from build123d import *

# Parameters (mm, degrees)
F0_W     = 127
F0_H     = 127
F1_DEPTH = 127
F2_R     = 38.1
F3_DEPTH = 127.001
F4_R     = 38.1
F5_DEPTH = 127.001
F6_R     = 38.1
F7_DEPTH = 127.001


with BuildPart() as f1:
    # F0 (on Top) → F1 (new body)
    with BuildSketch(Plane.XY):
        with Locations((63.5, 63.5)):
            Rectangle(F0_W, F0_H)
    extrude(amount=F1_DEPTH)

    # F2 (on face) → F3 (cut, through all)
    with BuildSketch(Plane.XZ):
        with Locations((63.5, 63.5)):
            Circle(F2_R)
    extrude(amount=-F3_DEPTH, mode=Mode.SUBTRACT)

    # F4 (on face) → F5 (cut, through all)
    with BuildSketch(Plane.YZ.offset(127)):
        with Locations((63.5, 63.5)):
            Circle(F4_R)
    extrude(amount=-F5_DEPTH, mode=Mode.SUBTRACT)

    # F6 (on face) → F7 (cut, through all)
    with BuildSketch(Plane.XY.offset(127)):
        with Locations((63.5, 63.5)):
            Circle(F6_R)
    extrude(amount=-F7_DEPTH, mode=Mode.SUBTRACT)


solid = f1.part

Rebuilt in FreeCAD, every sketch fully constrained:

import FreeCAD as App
import Part
import Sketcher
Q = App.Units.Quantity


def add_polygon(sketch, points):
    """Adds a closed chain of lines whose ends are joined by coincident constraints."""
    first, n = sketch.GeometryCount, len(points)
    for a, b in zip(points, points[1:] + points[:1]):
        sketch.addGeometry(Part.LineSegment(App.Vector(*a, 0), App.Vector(*b, 0)), False)
    for i in range(n):
        sketch.addConstraint(Sketcher.Constraint("Coincident", first + i, 2, first + (i + 1) % n, 1))

doc = App.newDocument("Part")
body = doc.addObject("PartDesign::Body", "Body")

# Sketch on XY plane
sketch1 = body.newObject("Sketcher::SketchObject", "Sketch")
sketch1.AttachmentSupport = (doc.getObject("XY_Plane"), [""])
sketch1.MapMode = "FlatFace"
add_polygon(sketch1, [(0, 127), (0, 0), (127, 0), (127, 127)])  # lines 0-3
sketch1.addConstraint(Sketcher.Constraint("Vertical", 0))
sketch1.addConstraint(Sketcher.Constraint("Horizontal", 1))
sketch1.addConstraint(Sketcher.Constraint("Vertical", 2))
sketch1.addConstraint(Sketcher.Constraint("Horizontal", 3))
sketch1.addConstraint(Sketcher.Constraint("Coincident", 0, 2, -1, 1))
sketch1.addConstraint(Sketcher.Constraint("Equal", 3, 0))
sketch1.addConstraint(Sketcher.Constraint("DistanceX", 1, 1, 1, 2, Q("5 in")))
pad1 = body.newObject("PartDesign::Pad", "Pad")
pad1.Profile = sketch1
pad1.Length = Q("5 in")

# Sketch on XZ plane
sketch2 = body.newObject("Sketcher::SketchObject", "Sketch001")
sketch2.AttachmentSupport = (doc.getObject("XZ_Plane"), [""])
sketch2.MapMode = "FlatFace"
sketch2.addGeometry(Part.Circle(App.Vector(64, 64, 0), App.Vector(0, 0, 1), 38), False)
sketch2.addConstraint(Sketcher.Constraint("Diameter", 0, Q("3 in")))
sketch2.addConstraint(Sketcher.Constraint("DistanceX", -1, 1, 0, 3, Q("2.5 in")))
sketch2.addConstraint(Sketcher.Constraint("DistanceY", -1, 1, 0, 3, Q("2.5 in")))
pocket1 = body.newObject("PartDesign::Pocket", "Pocket")
pocket1.Profile = sketch2
pocket1.Type = "ThroughAll"

# Sketch on YZ plane
sketch3 = body.newObject("Sketcher::SketchObject", "Sketch002")
sketch3.AttachmentSupport = (doc.getObject("YZ_Plane"), [""])
sketch3.MapMode = "FlatFace"
sketch3.AttachmentOffset = App.Placement(App.Vector(0, 0, 5 * 25.4), App.Rotation())
sketch3.addGeometry(Part.Circle(App.Vector(64, 64, 0), App.Vector(0, 0, 1), 38), False)
sketch3.addConstraint(Sketcher.Constraint("Diameter", 0, Q("3 in")))
sketch3.addConstraint(Sketcher.Constraint("DistanceX", -1, 1, 0, 3, Q("2.5 in")))
sketch3.addConstraint(Sketcher.Constraint("DistanceY", -1, 1, 0, 3, Q("2.5 in")))
pocket2 = body.newObject("PartDesign::Pocket", "Pocket001")
pocket2.Profile = sketch3
pocket2.Type = "ThroughAll"

# Sketch on XY plane
sketch4 = body.newObject("Sketcher::SketchObject", "Sketch003")
sketch4.AttachmentSupport = (doc.getObject("XY_Plane"), [""])
sketch4.MapMode = "FlatFace"
sketch4.AttachmentOffset = App.Placement(App.Vector(0, 0, 5 * 25.4), App.Rotation())
sketch4.addGeometry(Part.Circle(App.Vector(64, 64, 0), App.Vector(0, 0, 1), 38), False)
sketch4.addConstraint(Sketcher.Constraint("Diameter", 0, Q("3 in")))
sketch4.addConstraint(Sketcher.Constraint("DistanceX", -1, 1, 0, 3, Q("2.5 in")))
sketch4.addConstraint(Sketcher.Constraint("DistanceY", -1, 1, 0, 3, Q("2.5 in")))
pocket3 = body.newObject("PartDesign::Pocket", "Pocket002")
pocket3.Profile = sketch4
pocket3.Type = "ThroughAll"

doc.recompute()
